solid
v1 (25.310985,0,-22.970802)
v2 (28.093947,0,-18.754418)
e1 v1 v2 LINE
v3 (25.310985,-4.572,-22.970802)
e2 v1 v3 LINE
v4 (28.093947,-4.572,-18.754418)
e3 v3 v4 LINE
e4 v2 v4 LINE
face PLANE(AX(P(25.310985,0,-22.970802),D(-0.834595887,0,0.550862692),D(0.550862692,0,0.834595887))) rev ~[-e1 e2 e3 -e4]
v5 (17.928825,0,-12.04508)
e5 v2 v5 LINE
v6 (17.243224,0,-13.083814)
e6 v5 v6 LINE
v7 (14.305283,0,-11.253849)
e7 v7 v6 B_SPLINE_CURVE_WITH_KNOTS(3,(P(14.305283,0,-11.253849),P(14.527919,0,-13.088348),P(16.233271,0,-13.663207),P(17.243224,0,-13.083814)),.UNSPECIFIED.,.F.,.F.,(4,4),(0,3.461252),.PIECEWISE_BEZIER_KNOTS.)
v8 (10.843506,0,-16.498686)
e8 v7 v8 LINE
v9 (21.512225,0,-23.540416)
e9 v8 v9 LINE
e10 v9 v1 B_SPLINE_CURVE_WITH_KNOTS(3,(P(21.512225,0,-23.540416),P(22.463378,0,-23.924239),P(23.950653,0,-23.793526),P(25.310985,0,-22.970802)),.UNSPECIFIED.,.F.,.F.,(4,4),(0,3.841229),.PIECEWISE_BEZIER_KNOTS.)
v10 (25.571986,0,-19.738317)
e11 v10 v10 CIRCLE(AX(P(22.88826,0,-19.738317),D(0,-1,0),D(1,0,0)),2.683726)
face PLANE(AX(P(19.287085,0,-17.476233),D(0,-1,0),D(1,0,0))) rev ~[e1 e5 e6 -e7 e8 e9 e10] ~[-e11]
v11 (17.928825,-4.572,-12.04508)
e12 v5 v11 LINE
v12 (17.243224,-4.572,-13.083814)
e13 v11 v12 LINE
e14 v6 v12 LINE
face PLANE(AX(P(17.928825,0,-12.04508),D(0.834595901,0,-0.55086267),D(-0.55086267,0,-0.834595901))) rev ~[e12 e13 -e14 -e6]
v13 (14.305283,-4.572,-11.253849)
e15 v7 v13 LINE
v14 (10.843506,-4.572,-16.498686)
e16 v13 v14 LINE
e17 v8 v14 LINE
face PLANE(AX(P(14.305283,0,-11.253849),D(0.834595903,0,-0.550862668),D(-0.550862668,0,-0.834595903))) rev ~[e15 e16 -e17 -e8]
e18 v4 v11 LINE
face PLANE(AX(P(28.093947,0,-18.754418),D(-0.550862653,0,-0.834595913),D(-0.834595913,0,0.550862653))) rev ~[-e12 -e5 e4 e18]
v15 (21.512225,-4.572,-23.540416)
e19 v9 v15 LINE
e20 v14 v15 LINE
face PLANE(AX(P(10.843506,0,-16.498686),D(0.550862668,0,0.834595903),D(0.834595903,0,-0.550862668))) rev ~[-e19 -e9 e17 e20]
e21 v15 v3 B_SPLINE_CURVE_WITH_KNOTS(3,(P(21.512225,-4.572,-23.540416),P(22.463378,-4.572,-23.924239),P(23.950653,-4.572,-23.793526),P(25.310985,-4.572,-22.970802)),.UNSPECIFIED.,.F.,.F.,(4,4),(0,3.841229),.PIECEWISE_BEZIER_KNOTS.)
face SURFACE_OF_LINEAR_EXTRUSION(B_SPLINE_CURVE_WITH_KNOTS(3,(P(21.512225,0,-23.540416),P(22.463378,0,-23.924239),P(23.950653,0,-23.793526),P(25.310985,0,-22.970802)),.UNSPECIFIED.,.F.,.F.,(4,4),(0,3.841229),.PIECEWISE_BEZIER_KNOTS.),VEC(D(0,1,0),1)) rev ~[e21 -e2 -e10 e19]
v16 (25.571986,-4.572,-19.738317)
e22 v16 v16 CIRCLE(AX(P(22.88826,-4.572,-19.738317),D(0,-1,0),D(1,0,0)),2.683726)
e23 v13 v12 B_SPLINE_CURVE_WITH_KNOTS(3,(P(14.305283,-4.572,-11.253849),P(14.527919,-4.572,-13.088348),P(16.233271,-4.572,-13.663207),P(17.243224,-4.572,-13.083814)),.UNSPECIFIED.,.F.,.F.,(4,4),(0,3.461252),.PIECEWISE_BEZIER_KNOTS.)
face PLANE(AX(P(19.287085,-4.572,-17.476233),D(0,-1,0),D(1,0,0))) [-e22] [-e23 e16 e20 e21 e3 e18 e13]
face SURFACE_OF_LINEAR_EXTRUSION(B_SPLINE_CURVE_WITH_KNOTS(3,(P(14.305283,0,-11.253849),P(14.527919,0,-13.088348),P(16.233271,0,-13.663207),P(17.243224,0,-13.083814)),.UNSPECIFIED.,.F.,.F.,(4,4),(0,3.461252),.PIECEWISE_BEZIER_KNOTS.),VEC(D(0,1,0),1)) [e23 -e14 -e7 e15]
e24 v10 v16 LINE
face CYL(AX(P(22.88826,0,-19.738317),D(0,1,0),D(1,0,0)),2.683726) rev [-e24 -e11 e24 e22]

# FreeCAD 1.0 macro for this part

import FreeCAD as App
import Part
import Sketcher
from FreeCAD import Vector
Q = App.Units.Quantity

doc = App.newDocument("Part")
body = doc.addObject("PartDesign::Body", "Body")

# Sketch on XZ plane
sketch1 = body.newObject("Sketcher::SketchObject", "Sketch")
sketch1.AttachmentSupport = (doc.getObject("XZ_Plane"), [""])
sketch1.MapMode = "FlatFace"
sketch1.addGeometry([
    Part.LineSegment(Vector(25.310985, -22.970802, 0), Vector(28.093947, -18.754418, 0)),  # 0
    Part.LineSegment(Vector(28.093947, -18.754418, 0), Vector(17.928825, -12.04508, 0)),  # 1
    Part.LineSegment(Vector(17.928825, -12.04508, 0), Vector(17.243224, -13.083814, 0)),  # 2
    Part.BSplineCurve([Vector(14.305283, -11.253849, 0), Vector(14.527919, -13.088348, 0), Vector(16.233271, -13.663207, 0), Vector(17.243224, -13.083814, 0)], [4, 4], [0, 3.461252], False, 3, [1, 1, 1, 1], False),  # 3
    Part.LineSegment(Vector(14.305283, -11.253849, 0), Vector(10.843506, -16.498686, 0)),  # 4
    Part.LineSegment(Vector(10.843506, -16.498686, 0), Vector(21.512225, -23.540416, 0)),  # 5
    Part.BSplineCurve([Vector(21.512225, -23.540416, 0), Vector(22.463378, -23.924239, 0), Vector(23.950653, -23.793526, 0), Vector(25.310985, -22.970802, 0)], [4, 4], [0, 3.841229], False, 3, [1, 1, 1, 1], False),  # 6
    Part.Circle(Vector(22.88826, -19.738317, 0), Vector(0, 0, 1), 2.683726),  # 7
], False)
sketch1.addConstraint([
    Sketcher.Constraint("Block", 3),
    Sketcher.Constraint("Block", 6),
    Sketcher.Constraint("Coincident", 0, 2, 1, 1),
    Sketcher.Constraint("Coincident", 1, 2, 2, 1),
    Sketcher.Constraint("Coincident", 2, 2, 3, 2),
    Sketcher.Constraint("Coincident", 3, 1, 4, 1),
    Sketcher.Constraint("Coincident", 4, 2, 5, 1),
    Sketcher.Constraint("Coincident", 5, 2, 6, 1),
    Sketcher.Constraint("Coincident", 6, 2, 0, 1),
    Sketcher.Constraint("Distance", 2, Q("0.0489998 in")),
    Sketcher.Constraint("Diameter", 7, 5.367452),
    Sketcher.Constraint("DistanceY", 7, 3, 0, 2, 0.983899),
    Sketcher.Constraint("DistanceX", 2, 2, 1, 2, 0.685601),
    Sketcher.Constraint("DistanceY", 5, 2, 7, 3, 3.802099),
    Sketcher.Constraint("DistanceX", -1, 1, 7, 3, 22.88826),
    Sketcher.Constraint("DistanceX", 4, 2, 2, 2, 6.399718),
    Sketcher.Constraint("DistanceY", 4, 2, 2, 2, 3.414872),
    Sketcher.Constraint("DistanceX", 4, 2, 0, 2, 17.250441),
])
pad1 = body.newObject("PartDesign::Pad", "Pad")
pad1.Profile = sketch1
pad1.Length = Q("0.18 in")

doc.recompute()
